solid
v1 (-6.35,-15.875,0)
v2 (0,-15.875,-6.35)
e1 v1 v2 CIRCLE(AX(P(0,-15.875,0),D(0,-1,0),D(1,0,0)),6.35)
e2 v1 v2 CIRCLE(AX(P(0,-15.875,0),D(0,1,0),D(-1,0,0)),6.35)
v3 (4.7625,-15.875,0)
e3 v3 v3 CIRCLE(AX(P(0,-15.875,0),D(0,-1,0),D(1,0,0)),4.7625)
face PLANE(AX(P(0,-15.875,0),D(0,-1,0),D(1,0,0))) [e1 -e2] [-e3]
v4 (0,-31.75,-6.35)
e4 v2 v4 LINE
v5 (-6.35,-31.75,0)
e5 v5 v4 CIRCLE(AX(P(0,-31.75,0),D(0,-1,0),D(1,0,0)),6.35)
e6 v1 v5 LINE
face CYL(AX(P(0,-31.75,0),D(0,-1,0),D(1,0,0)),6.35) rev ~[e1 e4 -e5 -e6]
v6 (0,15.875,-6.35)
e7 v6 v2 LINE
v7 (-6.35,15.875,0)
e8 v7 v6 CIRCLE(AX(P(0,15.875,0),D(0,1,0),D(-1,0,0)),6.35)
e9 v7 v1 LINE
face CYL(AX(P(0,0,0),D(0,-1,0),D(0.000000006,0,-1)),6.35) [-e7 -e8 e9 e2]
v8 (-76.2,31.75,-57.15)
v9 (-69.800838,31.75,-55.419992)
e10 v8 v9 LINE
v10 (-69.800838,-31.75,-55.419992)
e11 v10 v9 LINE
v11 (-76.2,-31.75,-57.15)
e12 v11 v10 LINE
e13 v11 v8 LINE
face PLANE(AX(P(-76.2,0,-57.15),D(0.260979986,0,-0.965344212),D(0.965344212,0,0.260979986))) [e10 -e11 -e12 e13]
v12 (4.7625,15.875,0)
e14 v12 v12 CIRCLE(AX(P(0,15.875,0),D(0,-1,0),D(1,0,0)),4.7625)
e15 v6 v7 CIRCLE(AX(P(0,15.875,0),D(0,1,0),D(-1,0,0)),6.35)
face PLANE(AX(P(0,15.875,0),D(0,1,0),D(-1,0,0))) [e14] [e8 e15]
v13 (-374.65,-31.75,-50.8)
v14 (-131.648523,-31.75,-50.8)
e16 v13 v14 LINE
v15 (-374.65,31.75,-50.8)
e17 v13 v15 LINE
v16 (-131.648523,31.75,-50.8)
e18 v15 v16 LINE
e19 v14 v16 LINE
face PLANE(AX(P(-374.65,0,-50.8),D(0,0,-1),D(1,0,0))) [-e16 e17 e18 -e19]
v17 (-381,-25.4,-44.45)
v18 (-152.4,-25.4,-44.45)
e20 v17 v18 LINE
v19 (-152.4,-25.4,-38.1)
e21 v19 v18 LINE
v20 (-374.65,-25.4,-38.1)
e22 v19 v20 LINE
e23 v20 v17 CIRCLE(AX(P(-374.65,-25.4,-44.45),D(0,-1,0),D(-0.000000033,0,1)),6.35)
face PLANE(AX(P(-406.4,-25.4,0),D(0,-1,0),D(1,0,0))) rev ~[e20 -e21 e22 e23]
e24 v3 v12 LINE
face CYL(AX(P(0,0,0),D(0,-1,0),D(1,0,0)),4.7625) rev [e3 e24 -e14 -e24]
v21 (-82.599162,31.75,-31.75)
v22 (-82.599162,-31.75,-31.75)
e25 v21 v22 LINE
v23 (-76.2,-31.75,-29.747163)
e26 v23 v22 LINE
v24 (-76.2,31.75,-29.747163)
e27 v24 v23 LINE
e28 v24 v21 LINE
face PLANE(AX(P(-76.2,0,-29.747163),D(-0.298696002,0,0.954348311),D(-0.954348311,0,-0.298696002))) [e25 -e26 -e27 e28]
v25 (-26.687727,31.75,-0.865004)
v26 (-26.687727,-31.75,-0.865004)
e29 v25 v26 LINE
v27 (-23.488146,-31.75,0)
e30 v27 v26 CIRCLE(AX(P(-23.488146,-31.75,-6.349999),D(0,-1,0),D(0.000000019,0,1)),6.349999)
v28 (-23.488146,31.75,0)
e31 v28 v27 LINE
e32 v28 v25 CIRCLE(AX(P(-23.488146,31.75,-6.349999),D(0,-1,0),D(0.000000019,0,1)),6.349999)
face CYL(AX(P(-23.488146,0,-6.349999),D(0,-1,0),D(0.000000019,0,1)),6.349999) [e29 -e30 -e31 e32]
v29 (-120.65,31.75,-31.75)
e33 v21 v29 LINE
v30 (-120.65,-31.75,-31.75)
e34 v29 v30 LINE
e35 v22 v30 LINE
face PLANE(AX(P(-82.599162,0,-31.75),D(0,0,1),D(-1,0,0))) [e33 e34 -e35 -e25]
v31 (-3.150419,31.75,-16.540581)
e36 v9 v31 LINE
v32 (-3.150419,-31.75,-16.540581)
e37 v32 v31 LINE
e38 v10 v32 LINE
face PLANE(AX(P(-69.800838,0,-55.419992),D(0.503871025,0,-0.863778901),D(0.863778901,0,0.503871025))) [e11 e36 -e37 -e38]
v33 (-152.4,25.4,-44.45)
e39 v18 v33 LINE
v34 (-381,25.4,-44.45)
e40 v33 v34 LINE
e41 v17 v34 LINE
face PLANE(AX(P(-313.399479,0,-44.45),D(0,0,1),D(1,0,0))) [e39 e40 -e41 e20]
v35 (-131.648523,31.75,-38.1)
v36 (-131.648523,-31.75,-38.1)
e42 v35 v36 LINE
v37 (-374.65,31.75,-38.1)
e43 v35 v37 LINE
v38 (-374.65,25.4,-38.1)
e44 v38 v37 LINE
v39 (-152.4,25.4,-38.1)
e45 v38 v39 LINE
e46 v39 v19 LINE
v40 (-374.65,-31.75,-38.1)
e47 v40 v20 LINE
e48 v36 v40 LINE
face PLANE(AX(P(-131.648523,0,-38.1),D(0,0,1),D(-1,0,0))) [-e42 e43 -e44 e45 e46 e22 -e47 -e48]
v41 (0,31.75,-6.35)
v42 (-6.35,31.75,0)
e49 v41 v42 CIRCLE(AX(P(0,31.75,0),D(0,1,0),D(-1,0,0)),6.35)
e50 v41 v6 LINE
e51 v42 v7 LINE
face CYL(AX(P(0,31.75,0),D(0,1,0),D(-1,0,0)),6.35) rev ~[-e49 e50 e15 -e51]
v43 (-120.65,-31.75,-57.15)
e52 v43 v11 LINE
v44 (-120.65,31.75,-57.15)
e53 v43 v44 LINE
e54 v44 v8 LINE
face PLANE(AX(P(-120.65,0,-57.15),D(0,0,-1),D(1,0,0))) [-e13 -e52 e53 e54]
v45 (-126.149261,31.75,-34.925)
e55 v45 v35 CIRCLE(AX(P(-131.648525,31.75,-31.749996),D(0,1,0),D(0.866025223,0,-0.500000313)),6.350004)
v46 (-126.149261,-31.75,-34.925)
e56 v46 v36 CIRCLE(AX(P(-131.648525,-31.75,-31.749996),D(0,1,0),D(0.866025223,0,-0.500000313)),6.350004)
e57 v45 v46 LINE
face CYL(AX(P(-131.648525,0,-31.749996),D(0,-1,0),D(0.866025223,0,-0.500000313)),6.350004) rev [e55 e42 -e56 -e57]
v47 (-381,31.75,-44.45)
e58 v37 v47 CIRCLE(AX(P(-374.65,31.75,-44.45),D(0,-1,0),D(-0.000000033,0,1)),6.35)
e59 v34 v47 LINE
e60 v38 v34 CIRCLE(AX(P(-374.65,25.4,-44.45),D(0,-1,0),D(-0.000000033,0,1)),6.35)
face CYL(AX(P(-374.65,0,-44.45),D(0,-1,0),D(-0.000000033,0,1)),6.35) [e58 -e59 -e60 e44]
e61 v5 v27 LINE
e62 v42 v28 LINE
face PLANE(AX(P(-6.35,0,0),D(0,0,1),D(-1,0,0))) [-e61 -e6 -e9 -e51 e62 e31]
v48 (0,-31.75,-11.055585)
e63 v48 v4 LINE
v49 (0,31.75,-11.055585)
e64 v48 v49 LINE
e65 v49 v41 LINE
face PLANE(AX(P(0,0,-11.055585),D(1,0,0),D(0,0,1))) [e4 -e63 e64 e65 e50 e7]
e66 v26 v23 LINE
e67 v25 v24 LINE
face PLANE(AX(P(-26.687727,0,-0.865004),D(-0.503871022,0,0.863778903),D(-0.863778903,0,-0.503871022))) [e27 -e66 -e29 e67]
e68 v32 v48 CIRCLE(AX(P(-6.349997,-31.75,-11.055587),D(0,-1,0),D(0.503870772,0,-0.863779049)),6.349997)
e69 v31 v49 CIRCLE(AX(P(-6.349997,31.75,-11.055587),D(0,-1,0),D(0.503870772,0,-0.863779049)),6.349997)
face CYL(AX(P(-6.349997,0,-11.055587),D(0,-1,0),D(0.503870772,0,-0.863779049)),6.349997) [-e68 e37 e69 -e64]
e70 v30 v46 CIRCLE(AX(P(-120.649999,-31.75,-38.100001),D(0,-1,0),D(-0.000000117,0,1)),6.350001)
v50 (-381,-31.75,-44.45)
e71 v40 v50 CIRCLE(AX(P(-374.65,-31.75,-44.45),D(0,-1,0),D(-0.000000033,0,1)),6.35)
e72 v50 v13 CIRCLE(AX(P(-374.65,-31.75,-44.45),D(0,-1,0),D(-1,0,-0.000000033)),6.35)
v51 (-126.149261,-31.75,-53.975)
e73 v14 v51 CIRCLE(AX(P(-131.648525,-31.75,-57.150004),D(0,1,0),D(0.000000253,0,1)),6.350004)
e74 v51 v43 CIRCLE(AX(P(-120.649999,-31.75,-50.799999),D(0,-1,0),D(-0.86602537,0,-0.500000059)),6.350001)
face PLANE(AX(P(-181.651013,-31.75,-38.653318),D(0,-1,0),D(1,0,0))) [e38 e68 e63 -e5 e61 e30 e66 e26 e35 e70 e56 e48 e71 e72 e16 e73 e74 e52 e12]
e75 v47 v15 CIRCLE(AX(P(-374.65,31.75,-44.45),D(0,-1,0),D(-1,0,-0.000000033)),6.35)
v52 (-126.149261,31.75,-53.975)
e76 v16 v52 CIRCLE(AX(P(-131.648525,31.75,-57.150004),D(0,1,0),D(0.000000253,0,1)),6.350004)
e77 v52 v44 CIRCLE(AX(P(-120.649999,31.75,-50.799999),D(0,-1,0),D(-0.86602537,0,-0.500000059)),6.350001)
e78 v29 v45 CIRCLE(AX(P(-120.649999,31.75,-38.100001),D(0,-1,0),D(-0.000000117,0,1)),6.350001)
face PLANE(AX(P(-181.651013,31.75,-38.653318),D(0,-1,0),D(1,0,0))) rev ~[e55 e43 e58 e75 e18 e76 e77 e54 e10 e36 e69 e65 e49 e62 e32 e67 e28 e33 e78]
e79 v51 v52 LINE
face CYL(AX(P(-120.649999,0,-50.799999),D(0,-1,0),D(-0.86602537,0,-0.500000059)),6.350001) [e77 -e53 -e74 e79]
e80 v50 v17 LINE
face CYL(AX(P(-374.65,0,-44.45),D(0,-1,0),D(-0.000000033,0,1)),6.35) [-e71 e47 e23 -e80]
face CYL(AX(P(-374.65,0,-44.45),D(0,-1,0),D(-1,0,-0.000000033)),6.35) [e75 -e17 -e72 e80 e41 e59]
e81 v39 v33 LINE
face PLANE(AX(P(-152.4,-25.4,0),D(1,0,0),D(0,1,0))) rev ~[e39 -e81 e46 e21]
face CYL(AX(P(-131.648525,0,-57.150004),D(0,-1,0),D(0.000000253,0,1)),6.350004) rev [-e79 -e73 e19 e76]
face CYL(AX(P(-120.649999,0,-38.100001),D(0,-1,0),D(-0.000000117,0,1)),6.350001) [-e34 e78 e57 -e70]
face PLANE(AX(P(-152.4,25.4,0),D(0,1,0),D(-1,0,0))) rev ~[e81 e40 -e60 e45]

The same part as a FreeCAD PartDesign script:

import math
import FreeCAD as App
import Part
import Sketcher
from FreeCAD import Vector
Q = App.Units.Quantity


def add_polygon(sketch, points):
    """Adds a closed chain of lines whose ends are joined by coincident constraints."""
    first, n = sketch.GeometryCount, len(points)
    for a, b in zip(points, points[1:] + points[:1]):
        sketch.addGeometry(Part.LineSegment(App.Vector(*a, 0), App.Vector(*b, 0)), False)
    for i in range(n):
        sketch.addConstraint(Sketcher.Constraint("Coincident", first + i, 2, first + (i + 1) % n, 1))

doc = App.newDocument("Part")
body = doc.addObject("PartDesign::Body", "Body")

sketch1 = doc.addObject("Sketcher::SketchObject", "Sketch")
body.addObject(sketch1)
sketch1.AttachmentSupport = (doc.XZ_Plane, [""])
sketch1.MapMode = "FlatFace"
sketch1.addGeometry([
    Part.LineSegment(Vector(0, -11.1, 0), Vector(0, -6.3, 0)),
    Part.ArcOfCircle(Part.Circle(Vector(0, 0, 0), Vector(0, 0, 1), 6.3), math.radians(-90), math.radians(180)),
    Part.LineSegment(Vector(-6.3, 0, 0), Vector(-23.5, 0, 0)),
    Part.ArcOfCircle(Part.Circle(Vector(-23.5, -6.3, 0), Vector(0, 0, 1), 6.3), math.radians(90), math.radians(120)),
    Part.LineSegment(Vector(-26.7, -0.9, 0), Vector(-76.2, -29.7, 0)),
    Part.LineSegment(Vector(-76.2, -29.7, 0), Vector(-82.6, -31.8, 0)),
    Part.LineSegment(Vector(-82.6, -31.8, 0), Vector(-120.7, -31.8, 0)),
    Part.ArcOfCircle(Part.Circle(Vector(-120.6, -38.1, 0), Vector(0, 0, 1), 6.4), math.radians(90), math.radians(150)),
    Part.ArcOfCircle(Part.Circle(Vector(-131.6, -31.7, 0), Vector(0, 0, 1), 6.4), math.radians(-90), math.radians(-30)),
    Part.LineSegment(Vector(-131.6, -38.1, 0), Vector(-374.6, -38.1, 0)),
    Part.ArcOfCircle(Part.Circle(Vector(-374.6, -44.5, 0), Vector(0, 0, 1), 6.4), math.radians(90), math.radians(180)),
    Part.ArcOfCircle(Part.Circle(Vector(-374.6, -44.4, 0), Vector(0, 0, 1), 6.4), math.radians(-180), math.radians(-90)),
    Part.LineSegment(Vector(-374.6, -50.8, 0), Vector(-131.6, -50.8, 0)),
    Part.ArcOfCircle(Part.Circle(Vector(-131.6, -57.2, 0), Vector(0, 0, 1), 6.4), math.radians(30), math.radians(90)),
    Part.ArcOfCircle(Part.Circle(Vector(-120.6, -50.8, 0), Vector(0, 0, 1), 6.4), math.radians(-150), math.radians(-90)),
    Part.LineSegment(Vector(-120.7, -57.1, 0), Vector(-76.2, -57.1, 0)),
    Part.LineSegment(Vector(-76.2, -57.1, 0), Vector(-69.8, -55.4, 0)),
    Part.LineSegment(Vector(-69.8, -55.4, 0), Vector(-3.2, -16.5, 0)),
    Part.ArcOfCircle(Part.Circle(Vector(-6.3, -11.1, 0), Vector(0, 0, 1), 6.3), math.radians(-60), math.radians(0)),
    Part.Circle(Vector(0, 0, 0), Vector(0, 0, 1), 4.8),
], False)
sketch1.addConstraint([
    Sketcher.Constraint("Coincident", 0, 2, 1, 1),
    Sketcher.Constraint("Coincident", 1, 2, 2, 1),
    Sketcher.Constraint("Tangent", 2, 2, 3, 1),
    Sketcher.Constraint("Tangent", 3, 2, 4, 1),
    Sketcher.Constraint("Coincident", 4, 2, 5, 1),
    Sketcher.Constraint("Coincident", 5, 2, 6, 1),
    Sketcher.Constraint("Tangent", 6, 2, 7, 1),
    Sketcher.Constraint("Tangent", 7, 2, 8, 2),
    Sketcher.Constraint("Tangent", 8, 1, 9, 1),
    Sketcher.Constraint("Tangent", 9, 2, 10, 1),
    Sketcher.Constraint("Tangent", 10, 2, 11, 1),
    Sketcher.Constraint("Tangent", 11, 2, 12, 1),
    Sketcher.Constraint("Tangent", 12, 2, 13, 2),
    Sketcher.Constraint("Tangent", 13, 1, 14, 1),
    Sketcher.Constraint("Tangent", 14, 2, 15, 1),
    Sketcher.Constraint("Coincident", 15, 2, 16, 1),
    Sketcher.Constraint("Coincident", 16, 2, 17, 1),
    Sketcher.Constraint("Tangent", 17, 2, 18, 1),
    Sketcher.Constraint("Tangent", 18, 2, 0, 1),
    Sketcher.Constraint("Vertical", 0),
    Sketcher.Constraint("Horizontal", 2),
    Sketcher.Constraint("Horizontal", 6),
    Sketcher.Constraint("Horizontal", 9),
    Sketcher.Constraint("Horizontal", 12),
    Sketcher.Constraint("Horizontal", 15),
    Sketcher.Constraint("Coincident", 1, 3, -1, 1),
    Sketcher.Constraint("Coincident", 19, 3, -1, 1),
    Sketcher.Constraint("Equal", 1, 3),
    Sketcher.Constraint("Equal", 3, 7),
    Sketcher.Constraint("Equal", 7, 10),
    Sketcher.Constraint("Equal", 10, 11),
    Sketcher.Constraint("Equal", 8, 13),
    Sketcher.Constraint("Equal", 11, 14),
    Sketcher.Constraint("PointOnObject", 0, 2, -2),
    Sketcher.Constraint("PointOnObject", 1, 2, -1),
    Sketcher.Constraint("Parallel", 4, 17),
    Sketcher.Constraint("Horizontal", 7, 3, 8, 1),
    Sketcher.Constraint("Horizontal", 11, 3, 10, 2),
    Sketcher.Constraint("Horizontal", 14, 3, 11, 2),
    Sketcher.Constraint("Vertical", 8, 3, 13, 3),
    Sketcher.Constraint("Vertical", 4, 2, 15, 2),
    Sketcher.Constraint("Radius", 1, Q("0.25 in")),
    Sketcher.Constraint("Radius", 8, Q("0.2500002 in")),
    Sketcher.Constraint("Radius", 18, Q("0.2499999 in")),
    Sketcher.Constraint("Diameter", 19, Q("0.375 in")),
    Sketcher.Constraint("DistanceY", 14, 3, -1, 1, Q("2 in")),
    Sketcher.Constraint("DistanceX", 4, 2, -1, 1, Q("3 in")),
    Sketcher.Constraint("DistanceX", 10, 2, -1, 1, Q("15 in")),
    Sketcher.Constraint("DistanceX", 10, 3, 7, 3, Q("10 in")),
    Sketcher.Constraint("Distance", 4, Q("57.32054 mm")),
    Sketcher.Constraint("Distance", 5, Q("6.705269 mm")),
    Sketcher.Constraint("Distance", 16, Q("6.628891 mm")),
    Sketcher.Constraint("DistanceX", 2, 2, 2, 1, Q("17.138146 mm")),
    Sketcher.Constraint("DistanceY", 0, 1, 0, 2, Q("4.705585 mm")),
])
pad1 = doc.addObject("PartDesign::Pad", "Pad")
body.addObject(pad1)
pad1.Profile = sketch1
pad1.Type = "TwoLengths"
pad1.Length = Q("1.25 in")
pad1.Length2 = Q("1.25 in")

sketch2 = doc.addObject("Sketcher::SketchObject", "Sketch001")
body.addObject(sketch2)
sketch2.AttachmentSupport = (doc.XZ_Plane, [""])
sketch2.MapMode = "FlatFace"
sketch2.addGeometry([
    Part.LineSegment(Vector(0, -11.1, 0), Vector(0, -6.3, 0)),
    Part.ArcOfCircle(Part.Circle(Vector(0, 0, 0), Vector(0, 0, 1), 6.3), math.radians(-90), math.radians(180)),
    Part.LineSegment(Vector(-6.3, 0, 0), Vector(-23.5, 0, 0)),
    Part.ArcOfCircle(Part.Circle(Vector(-23.5, -6.3, 0), Vector(0, 0, 1), 6.3), math.radians(90), math.radians(120)),
    Part.LineSegment(Vector(-26.7, -0.9, 0), Vector(-76.2, -29.7, 0)),
    Part.LineSegment(Vector(-76.2, -29.7, 0), Vector(-82.6, -31.8, 0)),
    Part.LineSegment(Vector(-82.6, -31.8, 0), Vector(-120.7, -31.8, 0)),
    Part.ArcOfCircle(Part.Circle(Vector(-120.6, -38.1, 0), Vector(0, 0, 1), 6.4), math.radians(90), math.radians(150)),
    Part.ArcOfCircle(Part.Circle(Vector(-131.6, -31.7, 0), Vector(0, 0, 1), 6.4), math.radians(-90), math.radians(-30)),
    Part.LineSegment(Vector(-131.6, -38.1, 0), Vector(-152.4, -38.1, 0)),
    Part.LineSegment(Vector(-152.4, -38.1, 0), Vector(-152.4, 0, 0)),
    Part.LineSegment(Vector(-152.4, 0, 0), Vector(-220.4, 0, 0)),
    Part.ArcOfCircle(Part.Circle(Vector(-220.4, -9.5, 0), Vector(0, 0, 1), 9.5), math.radians(90), math.radians(164)),
    Part.ArcOfCircle(Part.Circle(Vector(-254, 0, 0), Vector(0, 0, 1), 25.4), math.radians(-164), math.radians(-16)),
    Part.ArcOfCircle(Part.Circle(Vector(-287.6, -9.5, 0), Vector(0, 0, 1), 9.5), math.radians(16), math.radians(90)),
    Part.LineSegment(Vector(-287.6, 0, 0), Vector(-355.6, 0, 0)),
    Part.LineSegment(Vector(-355.6, 0, 0), Vector(-355.6, -38.1, 0)),
    Part.LineSegment(Vector(-355.6, -38.1, 0), Vector(-374.6, -38.1, 0)),
    Part.ArcOfCircle(Part.Circle(Vector(-374.6, -44.5, 0), Vector(0, 0, 1), 6.4), math.radians(90), math.radians(180)),
    Part.ArcOfCircle(Part.Circle(Vector(-374.6, -44.4, 0), Vector(0, 0, 1), 6.4), math.radians(-180), math.radians(-90)),
    Part.LineSegment(Vector(-374.6, -50.8, 0), Vector(-131.6, -50.8, 0)),
    Part.ArcOfCircle(Part.Circle(Vector(-131.6, -57.2, 0), Vector(0, 0, 1), 6.4), math.radians(30), math.radians(90)),
    Part.ArcOfCircle(Part.Circle(Vector(-120.6, -50.8, 0), Vector(0, 0, 1), 6.4), math.radians(-150), math.radians(-90)),
    Part.LineSegment(Vector(-120.7, -57.1, 0), Vector(-76.2, -57.1, 0)),
    Part.LineSegment(Vector(-76.2, -57.1, 0), Vector(-69.8, -55.4, 0)),
    Part.LineSegment(Vector(-69.8, -55.4, 0), Vector(-3.2, -16.5, 0)),
    Part.ArcOfCircle(Part.Circle(Vector(-6.3, -11.1, 0), Vector(0, 0, 1), 6.3), math.radians(-60), math.radians(0)),
    Part.Circle(Vector(0, 0, 0), Vector(0, 0, 1), 4.8),
], False)
sketch2.addConstraint([
    Sketcher.Constraint("Coincident", 0, 2, 1, 1),
    Sketcher.Constraint("Coincident", 1, 2, 2, 1),
    Sketcher.Constraint("Tangent", 2, 2, 3, 1),
    Sketcher.Constraint("Tangent", 3, 2, 4, 1),
    Sketcher.Constraint("Coincident", 4, 2, 5, 1),
    Sketcher.Constraint("Coincident", 5, 2, 6, 1),
    Sketcher.Constraint("Tangent", 6, 2, 7, 1),
    Sketcher.Constraint("Tangent", 7, 2, 8, 2),
    Sketcher.Constraint("Tangent", 8, 1, 9, 1),
    Sketcher.Constraint("Coincident", 9, 2, 10, 1),
    Sketcher.Constraint("Coincident", 10, 2, 11, 1),
    Sketcher.Constraint("Tangent", 11, 2, 12, 1),
    Sketcher.Constraint("Tangent", 12, 2, 13, 2),
    Sketcher.Constraint("Tangent", 13, 1, 14, 1),
    Sketcher.Constraint("Tangent", 14, 2, 15, 1),
    Sketcher.Constraint("Coincident", 15, 2, 16, 1),
    Sketcher.Constraint("Coincident", 16, 2, 17, 1),
    Sketcher.Constraint("Tangent", 17, 2, 18, 1),
    Sketcher.Constraint("Tangent", 18, 2, 19, 1),
    Sketcher.Constraint("Tangent", 19, 2, 20, 1),
    Sketcher.Constraint("Tangent", 20, 2, 21, 2),
    Sketcher.Constraint("Tangent", 21, 1, 22, 1),
    Sketcher.Constraint("Tangent", 22, 2, 23, 1),
    Sketcher.Constraint("Coincident", 23, 2, 24, 1),
    Sketcher.Constraint("Coincident", 24, 2, 25, 1),
    Sketcher.Constraint("Tangent", 25, 2, 26, 1),
    Sketcher.Constraint("Tangent", 26, 2, 0, 1),
    Sketcher.Constraint("Vertical", 0),
    Sketcher.Constraint("Horizontal", 2),
    Sketcher.Constraint("Horizontal", 6),
    Sketcher.Constraint("Horizontal", 9),
    Sketcher.Constraint("Vertical", 10),
    Sketcher.Constraint("Horizontal", 11),
    Sketcher.Constraint("Horizontal", 15),
    Sketcher.Constraint("Vertical", 16),
    Sketcher.Constraint("Horizontal", 17),
    Sketcher.Constraint("Horizontal", 20),
    Sketcher.Constraint("Horizontal", 23),
    Sketcher.Constraint("Coincident", 1, 3, -1, 1),
    Sketcher.Constraint("Coincident", 27, 3, -1, 1),
    Sketcher.Constraint("Equal", 1, 3),
    Sketcher.Constraint("Equal", 3, 7),
    Sketcher.Constraint("Equal", 12, 14),
    Sketcher.Constraint("Equal", 7, 18),
    Sketcher.Constraint("Equal", 18, 19),
    Sketcher.Constraint("Equal", 8, 21),
    Sketcher.Constraint("Equal", 19, 22),
    Sketcher.Constraint("PointOnObject", 13, 3, -1),
    Sketcher.Constraint("PointOnObject", 0, 2, -2),
    Sketcher.Constraint("PointOnObject", 1, 2, -1),
    Sketcher.Constraint("PointOnObject", 10, 2, -1),
    Sketcher.Constraint("PointOnObject", 14, 2, -1),
    Sketcher.Constraint("Parallel", 4, 25),
    Sketcher.Constraint("Horizontal", 7, 3, 8, 1),
    Sketcher.Constraint("Horizontal", 9, 2, 16, 2),
    Sketcher.Constraint("Horizontal", 19, 3, 18, 2),
    Sketcher.Constraint("Horizontal", 22, 3, 19, 2),
    Sketcher.Constraint("Vertical", 8, 3, 21, 3),
    Sketcher.Constraint("Vertical", 4, 2, 23, 2),
    Sketcher.Constraint("Equal", 11, 15),
    Sketcher.Constraint("Radius", 13, Q("1 in")),
    Sketcher.Constraint("Radius", 1, Q("0.25 in")),
    Sketcher.Constraint("Radius", 8, Q("0.2500002 in")),
    Sketcher.Constraint("Radius", 26, Q("0.2499999 in")),
    Sketcher.Constraint("Diameter", 27, Q("0.375 in")),
    Sketcher.Constraint("DistanceY", 10, 1, 10, 2, Q("1.5 in")),
    Sketcher.Constraint("DistanceX", 13, 3, -1, 1, Q("10 in")),
    Sketcher.Constraint("DistanceX", 4, 2, -1, 1, Q("3 in")),
    Sketcher.Constraint("DistanceX", 9, 2, -1, 1, Q("6 in")),
    Sketcher.Constraint("DistanceX", 18, 2, -1, 1, Q("15 in")),
    Sketcher.Constraint("Radius", 12, Q("0.3750001 in")),
    Sketcher.Constraint("DistanceX", 18, 3, 7, 3, Q("10 in")),
    Sketcher.Constraint("Distance", 4, Q("57.32054 mm")),
    Sketcher.Constraint("Distance", 5, Q("6.705269 mm")),
    Sketcher.Constraint("Distance", 24, Q("6.628891 mm")),
    Sketcher.Constraint("DistanceX", 2, 2, 2, 1, Q("17.138146 mm")),
    Sketcher.Constraint("DistanceY", 0, 1, 0, 2, Q("4.705585 mm")),
])
pad2 = doc.addObject("PartDesign::Pad", "Pad001")
body.addObject(pad2)
pad2.Profile = sketch2
pad2.Type = "TwoLengths"
pad2.Length = Q("1 in")
pad2.Length2 = Q("1 in")

sketch3 = doc.addObject("Sketcher::SketchObject", "Sketch002")
body.addObject(sketch3)
sketch3.AttachmentSupport = (doc.XZ_Plane, [""])
sketch3.MapMode = "FlatFace"
sketch3.AttachmentOffset = App.Placement(Vector(0, 0, -1.25 * 25.4), App.Rotation())
sketch3.addGeometry(Part.Circle(Vector(0, 0, 0), Vector(0, 0, 1), 6), False)
sketch3.addConstraint([
    Sketcher.Constraint("Coincident", 0, 3, -1, 1),
    Sketcher.Constraint("Diameter", 0, Q("0.5 in")),
])
pocket1 = doc.addObject("PartDesign::Pocket", "Pocket")
body.addObject(pocket1)
pocket1.Profile = sketch3
pocket1.Length = Q("0.625 in")
pocket1.Reversed = True

sketch4 = doc.addObject("Sketcher::SketchObject", "Sketch003")
body.addObject(sketch4)
sketch4.AttachmentSupport = (doc.XZ_Plane, [""])
sketch4.MapMode = "FlatFace"
sketch4.AttachmentOffset = App.Placement(Vector(0, 0, 1.25 * 25.4), App.Rotation())
sketch4.addGeometry(Part.Circle(Vector(0, 0, 0), Vector(0, 0, 1), 6), False)
sketch4.addConstraint([
    Sketcher.Constraint("Coincident", 0, 3, -1, 1),
    Sketcher.Constraint("Diameter", 0, Q("0.5 in")),
])
pocket2 = doc.addObject("PartDesign::Pocket", "Pocket001")
body.addObject(pocket2)
pocket2.Profile = sketch4
pocket2.Length = Q("0.625 in")

sketch5 = doc.addObject("Sketcher::SketchObject", "Sketch004")
body.addObject(sketch5)
sketch5.AttachmentSupport = (doc.XY_Plane, [""])
sketch5.MapMode = "FlatFace"
add_polygon(sketch5, [(-406, 25), (-406, -25), (-152, -25), (-152, 25)])
sketch5.addConstraint([
    Sketcher.Constraint("Vertical", 0),
    Sketcher.Constraint("Horizontal", 1),
    Sketcher.Constraint("Vertical", 2),
    Sketcher.Constraint("Horizontal", 3),
    Sketcher.Constraint("DistanceX", 1, 1, 1, 2, Q("10 in")),
    Sketcher.Constraint("DistanceY", 0, 2, 0, 1, Q("2 in")),
    Sketcher.Constraint("DistanceX", 0, 2, -1, 1, Q("16 in")),
    Sketcher.Constraint("DistanceY", 0, 2, -1, 1, Q("1 in")),
])
pocket3 = doc.addObject("PartDesign::Pocket", "Pocket002")
body.addObject(pocket3)
pocket3.Profile = sketch5
pocket3.Length = Q("1.75 in")

doc.recompute()
